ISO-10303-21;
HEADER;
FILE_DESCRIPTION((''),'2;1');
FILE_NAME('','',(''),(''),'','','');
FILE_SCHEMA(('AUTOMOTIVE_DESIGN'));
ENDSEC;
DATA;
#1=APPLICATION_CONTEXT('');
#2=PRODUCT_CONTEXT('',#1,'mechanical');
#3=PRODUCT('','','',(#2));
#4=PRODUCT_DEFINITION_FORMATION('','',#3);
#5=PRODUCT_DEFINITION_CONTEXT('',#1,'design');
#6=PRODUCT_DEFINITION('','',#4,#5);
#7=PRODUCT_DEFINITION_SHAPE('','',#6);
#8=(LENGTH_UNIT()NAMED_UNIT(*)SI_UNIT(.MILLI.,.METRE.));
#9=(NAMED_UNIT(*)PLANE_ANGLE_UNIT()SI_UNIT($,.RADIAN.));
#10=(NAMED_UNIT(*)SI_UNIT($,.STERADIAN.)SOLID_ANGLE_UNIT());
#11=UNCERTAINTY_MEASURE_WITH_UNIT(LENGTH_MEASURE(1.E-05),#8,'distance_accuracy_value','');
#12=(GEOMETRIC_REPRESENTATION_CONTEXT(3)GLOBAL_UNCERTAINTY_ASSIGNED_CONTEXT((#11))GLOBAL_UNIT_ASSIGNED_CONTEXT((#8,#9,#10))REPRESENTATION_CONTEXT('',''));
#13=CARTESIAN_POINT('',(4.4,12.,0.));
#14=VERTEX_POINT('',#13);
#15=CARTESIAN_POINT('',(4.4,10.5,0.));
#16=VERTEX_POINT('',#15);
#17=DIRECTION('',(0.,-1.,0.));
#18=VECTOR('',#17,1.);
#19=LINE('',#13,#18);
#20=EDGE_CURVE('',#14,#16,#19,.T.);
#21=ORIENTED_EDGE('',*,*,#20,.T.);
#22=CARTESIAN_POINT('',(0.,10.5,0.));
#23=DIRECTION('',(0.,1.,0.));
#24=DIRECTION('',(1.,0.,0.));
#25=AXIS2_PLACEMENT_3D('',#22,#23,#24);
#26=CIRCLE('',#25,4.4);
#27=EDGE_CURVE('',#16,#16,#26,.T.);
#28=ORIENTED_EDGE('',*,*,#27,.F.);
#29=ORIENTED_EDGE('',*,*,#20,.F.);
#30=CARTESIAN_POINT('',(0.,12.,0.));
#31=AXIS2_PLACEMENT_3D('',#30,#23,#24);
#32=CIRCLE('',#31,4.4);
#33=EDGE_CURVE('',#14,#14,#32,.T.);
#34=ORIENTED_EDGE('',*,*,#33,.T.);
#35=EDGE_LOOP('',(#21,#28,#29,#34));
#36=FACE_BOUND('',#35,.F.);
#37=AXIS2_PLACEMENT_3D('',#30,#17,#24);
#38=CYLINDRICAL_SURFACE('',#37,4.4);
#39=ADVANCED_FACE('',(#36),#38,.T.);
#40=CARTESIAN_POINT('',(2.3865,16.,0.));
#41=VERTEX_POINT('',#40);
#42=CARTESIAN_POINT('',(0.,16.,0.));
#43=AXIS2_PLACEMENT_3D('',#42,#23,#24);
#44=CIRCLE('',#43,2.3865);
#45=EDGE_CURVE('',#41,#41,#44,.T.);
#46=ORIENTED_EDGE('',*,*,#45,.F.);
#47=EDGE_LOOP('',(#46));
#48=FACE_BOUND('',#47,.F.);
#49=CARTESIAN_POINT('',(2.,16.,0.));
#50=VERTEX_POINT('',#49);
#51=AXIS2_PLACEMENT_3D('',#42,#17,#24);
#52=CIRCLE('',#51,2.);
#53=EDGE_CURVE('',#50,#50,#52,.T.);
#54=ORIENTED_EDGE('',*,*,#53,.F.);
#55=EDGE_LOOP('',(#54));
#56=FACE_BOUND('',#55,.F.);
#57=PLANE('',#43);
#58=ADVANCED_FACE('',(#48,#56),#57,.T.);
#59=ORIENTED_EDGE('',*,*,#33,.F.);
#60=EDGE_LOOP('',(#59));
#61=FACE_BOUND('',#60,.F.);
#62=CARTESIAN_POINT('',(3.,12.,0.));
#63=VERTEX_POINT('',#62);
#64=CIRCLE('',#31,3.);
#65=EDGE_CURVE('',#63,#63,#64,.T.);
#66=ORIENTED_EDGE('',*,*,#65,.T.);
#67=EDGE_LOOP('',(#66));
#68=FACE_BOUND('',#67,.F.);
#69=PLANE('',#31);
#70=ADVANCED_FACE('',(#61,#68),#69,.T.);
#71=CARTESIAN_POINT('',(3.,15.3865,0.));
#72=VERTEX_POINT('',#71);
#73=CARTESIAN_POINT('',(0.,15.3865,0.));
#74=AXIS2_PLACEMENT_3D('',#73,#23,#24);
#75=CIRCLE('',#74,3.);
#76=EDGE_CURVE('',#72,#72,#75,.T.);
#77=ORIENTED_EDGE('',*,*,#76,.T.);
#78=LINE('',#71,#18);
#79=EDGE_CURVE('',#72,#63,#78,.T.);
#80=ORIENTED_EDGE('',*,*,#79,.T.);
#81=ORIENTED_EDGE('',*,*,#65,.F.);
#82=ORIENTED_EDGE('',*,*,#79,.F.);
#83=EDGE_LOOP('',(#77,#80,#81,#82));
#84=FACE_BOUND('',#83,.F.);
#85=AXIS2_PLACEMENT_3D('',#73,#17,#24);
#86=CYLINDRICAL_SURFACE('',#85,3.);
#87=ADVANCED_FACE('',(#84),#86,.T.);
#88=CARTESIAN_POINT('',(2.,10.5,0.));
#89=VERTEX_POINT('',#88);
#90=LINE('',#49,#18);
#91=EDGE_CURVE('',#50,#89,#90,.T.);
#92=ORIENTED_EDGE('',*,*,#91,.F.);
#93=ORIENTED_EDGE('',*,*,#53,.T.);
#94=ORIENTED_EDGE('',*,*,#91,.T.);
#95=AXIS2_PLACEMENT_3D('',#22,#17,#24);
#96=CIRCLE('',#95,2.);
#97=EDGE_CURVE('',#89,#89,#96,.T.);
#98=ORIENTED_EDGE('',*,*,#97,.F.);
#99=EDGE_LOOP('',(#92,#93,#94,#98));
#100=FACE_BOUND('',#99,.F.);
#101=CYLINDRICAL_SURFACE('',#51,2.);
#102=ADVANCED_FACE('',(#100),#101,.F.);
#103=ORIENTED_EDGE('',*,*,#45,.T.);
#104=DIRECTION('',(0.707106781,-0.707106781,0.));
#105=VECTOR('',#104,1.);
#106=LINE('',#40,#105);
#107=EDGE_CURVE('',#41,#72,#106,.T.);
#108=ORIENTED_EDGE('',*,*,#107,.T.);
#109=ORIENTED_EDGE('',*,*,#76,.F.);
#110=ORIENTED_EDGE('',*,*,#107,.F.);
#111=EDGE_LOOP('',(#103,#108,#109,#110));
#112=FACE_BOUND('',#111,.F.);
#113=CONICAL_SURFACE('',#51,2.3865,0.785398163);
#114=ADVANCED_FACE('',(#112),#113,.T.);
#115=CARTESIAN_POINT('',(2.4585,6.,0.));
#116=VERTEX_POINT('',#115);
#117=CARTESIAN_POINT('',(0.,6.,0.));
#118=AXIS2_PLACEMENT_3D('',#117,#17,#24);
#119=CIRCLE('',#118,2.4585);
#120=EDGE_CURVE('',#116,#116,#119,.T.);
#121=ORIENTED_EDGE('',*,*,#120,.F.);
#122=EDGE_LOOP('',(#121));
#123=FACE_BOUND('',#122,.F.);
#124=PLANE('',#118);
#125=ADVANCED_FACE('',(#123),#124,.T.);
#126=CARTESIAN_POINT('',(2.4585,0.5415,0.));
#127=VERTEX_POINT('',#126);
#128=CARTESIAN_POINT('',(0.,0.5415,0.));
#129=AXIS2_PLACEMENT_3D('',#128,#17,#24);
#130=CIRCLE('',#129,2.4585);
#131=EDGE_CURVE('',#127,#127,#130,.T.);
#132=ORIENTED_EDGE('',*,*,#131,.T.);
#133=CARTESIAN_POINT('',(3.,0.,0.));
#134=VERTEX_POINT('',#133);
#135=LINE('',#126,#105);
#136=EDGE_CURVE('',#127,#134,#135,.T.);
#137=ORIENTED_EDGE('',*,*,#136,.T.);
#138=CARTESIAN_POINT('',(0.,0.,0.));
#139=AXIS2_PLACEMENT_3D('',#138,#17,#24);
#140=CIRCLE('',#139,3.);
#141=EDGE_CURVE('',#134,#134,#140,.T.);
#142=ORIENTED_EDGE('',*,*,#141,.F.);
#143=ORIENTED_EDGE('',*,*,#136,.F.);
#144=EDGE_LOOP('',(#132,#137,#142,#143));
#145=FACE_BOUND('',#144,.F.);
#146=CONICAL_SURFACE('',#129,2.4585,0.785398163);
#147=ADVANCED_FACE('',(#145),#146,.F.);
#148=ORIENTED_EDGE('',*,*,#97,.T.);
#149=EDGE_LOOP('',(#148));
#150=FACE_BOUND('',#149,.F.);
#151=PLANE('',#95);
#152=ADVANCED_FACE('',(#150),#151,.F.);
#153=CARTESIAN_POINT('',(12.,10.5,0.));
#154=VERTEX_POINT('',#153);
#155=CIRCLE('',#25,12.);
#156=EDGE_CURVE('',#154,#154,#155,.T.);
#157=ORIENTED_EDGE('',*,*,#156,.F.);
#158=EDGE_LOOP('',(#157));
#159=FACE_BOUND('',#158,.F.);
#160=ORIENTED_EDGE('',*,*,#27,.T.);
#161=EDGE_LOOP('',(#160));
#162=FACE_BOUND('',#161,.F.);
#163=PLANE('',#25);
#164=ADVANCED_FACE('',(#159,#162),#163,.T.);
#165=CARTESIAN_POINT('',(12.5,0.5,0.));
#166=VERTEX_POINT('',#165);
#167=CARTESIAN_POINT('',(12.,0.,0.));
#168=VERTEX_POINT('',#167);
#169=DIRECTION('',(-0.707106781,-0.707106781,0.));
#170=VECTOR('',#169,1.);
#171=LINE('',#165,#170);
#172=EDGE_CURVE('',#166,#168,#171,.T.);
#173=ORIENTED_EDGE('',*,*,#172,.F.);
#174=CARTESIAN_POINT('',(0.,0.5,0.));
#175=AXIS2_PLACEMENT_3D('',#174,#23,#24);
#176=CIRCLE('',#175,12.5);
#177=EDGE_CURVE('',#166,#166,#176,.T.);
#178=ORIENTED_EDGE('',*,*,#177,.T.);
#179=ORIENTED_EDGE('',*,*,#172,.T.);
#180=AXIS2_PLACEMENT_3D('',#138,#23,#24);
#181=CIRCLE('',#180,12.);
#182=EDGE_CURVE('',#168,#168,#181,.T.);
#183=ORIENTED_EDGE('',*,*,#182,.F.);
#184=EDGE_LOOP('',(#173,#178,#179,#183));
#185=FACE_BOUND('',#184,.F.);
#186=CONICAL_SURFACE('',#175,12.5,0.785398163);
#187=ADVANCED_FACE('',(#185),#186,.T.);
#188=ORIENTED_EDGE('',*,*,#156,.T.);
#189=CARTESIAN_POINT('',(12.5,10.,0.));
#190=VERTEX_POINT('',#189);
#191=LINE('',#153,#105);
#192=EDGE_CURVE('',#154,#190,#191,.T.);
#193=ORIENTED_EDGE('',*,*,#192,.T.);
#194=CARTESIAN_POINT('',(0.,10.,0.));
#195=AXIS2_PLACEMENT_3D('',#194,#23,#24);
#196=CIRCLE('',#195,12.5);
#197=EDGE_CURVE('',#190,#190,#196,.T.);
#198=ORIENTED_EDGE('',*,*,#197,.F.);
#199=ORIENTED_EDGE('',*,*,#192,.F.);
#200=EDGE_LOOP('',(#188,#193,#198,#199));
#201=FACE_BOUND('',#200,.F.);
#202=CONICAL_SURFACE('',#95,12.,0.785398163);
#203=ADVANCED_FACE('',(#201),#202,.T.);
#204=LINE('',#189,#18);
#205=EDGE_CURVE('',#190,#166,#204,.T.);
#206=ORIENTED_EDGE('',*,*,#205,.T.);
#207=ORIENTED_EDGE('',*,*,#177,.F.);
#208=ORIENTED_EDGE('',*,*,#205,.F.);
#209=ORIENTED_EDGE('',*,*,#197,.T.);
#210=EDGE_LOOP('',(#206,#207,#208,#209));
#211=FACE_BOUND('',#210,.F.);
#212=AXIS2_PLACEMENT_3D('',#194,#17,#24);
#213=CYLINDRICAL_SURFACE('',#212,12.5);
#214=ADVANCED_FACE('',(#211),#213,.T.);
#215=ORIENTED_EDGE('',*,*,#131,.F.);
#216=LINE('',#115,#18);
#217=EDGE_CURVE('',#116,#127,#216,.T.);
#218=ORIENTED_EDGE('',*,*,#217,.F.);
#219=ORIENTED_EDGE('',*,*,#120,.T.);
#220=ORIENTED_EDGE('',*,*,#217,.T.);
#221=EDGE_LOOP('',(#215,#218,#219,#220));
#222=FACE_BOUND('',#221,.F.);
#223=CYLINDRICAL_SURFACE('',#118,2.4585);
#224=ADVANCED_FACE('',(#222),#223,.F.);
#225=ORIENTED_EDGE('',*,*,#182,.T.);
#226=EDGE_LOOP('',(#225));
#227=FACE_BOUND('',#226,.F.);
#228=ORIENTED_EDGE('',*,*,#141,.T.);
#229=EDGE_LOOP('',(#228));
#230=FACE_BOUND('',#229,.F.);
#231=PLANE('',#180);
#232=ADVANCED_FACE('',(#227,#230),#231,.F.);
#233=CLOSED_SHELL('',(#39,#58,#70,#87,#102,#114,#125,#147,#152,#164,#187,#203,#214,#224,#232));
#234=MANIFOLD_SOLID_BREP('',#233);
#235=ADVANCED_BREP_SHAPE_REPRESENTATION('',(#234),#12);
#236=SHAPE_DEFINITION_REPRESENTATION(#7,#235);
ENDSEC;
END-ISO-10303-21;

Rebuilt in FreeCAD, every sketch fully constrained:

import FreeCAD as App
import Part
import Sketcher

V = App.Vector
Q = App.Units.Quantity


def add_polygon(sketch, points):
    """Adds a closed chain of lines whose ends are joined by coincident constraints."""
    first, n = sketch.GeometryCount, len(points)
    for a, b in zip(points, points[1:] + points[:1]):
        sketch.addGeometry(Part.LineSegment(App.Vector(*a, 0), App.Vector(*b, 0)), False)
    for i in range(n):
        sketch.addConstraint(Sketcher.Constraint("Coincident", first + i, 2, first + (i + 1) % n, 1))

doc = App.newDocument("Part")
body = doc.addObject("PartDesign::Body", "Body")

# Sketch on XY plane
sketch1 = doc.addObject("Sketcher::SketchObject", "Sketch")
body.addObject(sketch1)
sketch1.AttachmentSupport = (doc.XY_Plane, [""])
sketch1.MapMode = "FlatFace"
add_polygon(sketch1, [(0, 16), (0, 0), (12, 0), (12.5, 0.5), (12.5, 10), (12, 10.5), (4.4, 10.5), (4.4, 12), (3, 12), (3, 15.4), (2.4, 16)])  # lines 0-10
sketch1.addConstraint(Sketcher.Constraint("Vertical", 0))
sketch1.addConstraint(Sketcher.Constraint("Horizontal", 1))
sketch1.addConstraint(Sketcher.Constraint("Vertical", 3))
sketch1.addConstraint(Sketcher.Constraint("Horizontal", 5))
sketch1.addConstraint(Sketcher.Constraint("Vertical", 6))
sketch1.addConstraint(Sketcher.Constraint("Horizontal", 7))
sketch1.addConstraint(Sketcher.Constraint("Vertical", 8))
sketch1.addConstraint(Sketcher.Constraint("Horizontal", 10))
sketch1.addConstraint(Sketcher.Constraint("Coincident", 0, 2, -1, 1))
sketch1.addConstraint(Sketcher.Constraint("Perpendicular", 2, 4))
sketch1.addConstraint(Sketcher.Constraint("Parallel", 4, 9))
sketch1.addConstraint(Sketcher.Constraint("Vertical", 1, 2, 4, 2))
sketch1.addConstraint(Sketcher.Constraint("Equal", 2, 4))
sketch1.addConstraint(Sketcher.Constraint("DistanceX", 1, 1, 1, 2, 12.0))
sketch1.addConstraint(Sketcher.Constraint("DistanceY", 0, 2, 0, 1, 16.0))
sketch1.addConstraint(Sketcher.Constraint("DistanceX", 5, 2, 5, 1, 7.6))
sketch1.addConstraint(Sketcher.Constraint("DistanceX", 7, 2, 7, 1, 1.4))
sketch1.addConstraint(Sketcher.Constraint("DistanceY", 3, 1, 3, 2, 9.5))
sketch1.addConstraint(Sketcher.Constraint("DistanceY", 6, 1, 6, 2, 1.5))
sketch1.addConstraint(Sketcher.Constraint("DistanceY", -1, 1, 3, 2, 10.0))
sketch1.addConstraint(Sketcher.Constraint("DistanceX", 10, 2, 10, 1, 2.3865))
revolution = doc.addObject("PartDesign::Revolution", "Revolution")
body.addObject(revolution)
revolution.Profile = sketch1
revolution.ReferenceAxis = (sketch1, ["V_Axis"])
revolution.Angle = 360

# Sketch on XY plane
sketch2 = doc.addObject("Sketcher::SketchObject", "Sketch001")
body.addObject(sketch2)
sketch2.AttachmentSupport = (doc.XY_Plane, [""])
sketch2.MapMode = "FlatFace"
add_polygon(sketch2, [(0, 6), (0, 0), (3, 0), (2.5, 0.5), (2.5, 6)])  # lines 0-4
sketch2.addConstraint(Sketcher.Constraint("Vertical", 0))
sketch2.addConstraint(Sketcher.Constraint("Horizontal", 1))
sketch2.addConstraint(Sketcher.Constraint("Vertical", 3))
sketch2.addConstraint(Sketcher.Constraint("Horizontal", 4))
sketch2.addConstraint(Sketcher.Constraint("Coincident", 0, 2, -1, 1))
sketch2.addConstraint(Sketcher.Constraint("DistanceX", 1, 1, 1, 2, 3.0))
sketch2.addConstraint(Sketcher.Constraint("DistanceY", 0, 2, 0, 1, 6.0))
sketch2.addConstraint(Sketcher.Constraint("Angle", 2, Q("135 deg")))
sketch2.addConstraint(Sketcher.Constraint("DistanceX", 4, 2, 4, 1, 2.4585))
groove = doc.addObject("PartDesign::Groove", "Groove")
body.addObject(groove)
groove.Profile = sketch2
groove.ReferenceAxis = (sketch2, ["V_Axis"])
groove.Angle = 360

# Sketch on XY plane
sketch3 = doc.addObject("Sketcher::SketchObject", "Sketch002")
body.addObject(sketch3)
sketch3.AttachmentSupport = (doc.XY_Plane, [""])
sketch3.MapMode = "FlatFace"
add_polygon(sketch3, [(0, 16), (0, 10.5), (2, 10.5), (2, 16)])  # lines 0-3
sketch3.addConstraint(Sketcher.Constraint("Vertical", 0))
sketch3.addConstraint(Sketcher.Constraint("Horizontal", 1))
sketch3.addConstraint(Sketcher.Constraint("Vertical", 2))
sketch3.addConstraint(Sketcher.Constraint("Horizontal", 3))
sketch3.addConstraint(Sketcher.Constraint("PointOnObject", 0, 2, -2))
sketch3.addConstraint(Sketcher.Constraint("DistanceX", 1, 1, 1, 2, 2.0))
sketch3.addConstraint(Sketcher.Constraint("DistanceY", 0, 2, 0, 1, 5.5))
sketch3.addConstraint(Sketcher.Constraint("DistanceY", -1, 1, 2, 2, 16.0))
groove2 = doc.addObject("PartDesign::Groove", "Groove001")
body.addObject(groove2)
groove2.Profile = sketch3
groove2.ReferenceAxis = (sketch3, ["V_Axis"])
groove2.Angle = 360

doc.recompute()
